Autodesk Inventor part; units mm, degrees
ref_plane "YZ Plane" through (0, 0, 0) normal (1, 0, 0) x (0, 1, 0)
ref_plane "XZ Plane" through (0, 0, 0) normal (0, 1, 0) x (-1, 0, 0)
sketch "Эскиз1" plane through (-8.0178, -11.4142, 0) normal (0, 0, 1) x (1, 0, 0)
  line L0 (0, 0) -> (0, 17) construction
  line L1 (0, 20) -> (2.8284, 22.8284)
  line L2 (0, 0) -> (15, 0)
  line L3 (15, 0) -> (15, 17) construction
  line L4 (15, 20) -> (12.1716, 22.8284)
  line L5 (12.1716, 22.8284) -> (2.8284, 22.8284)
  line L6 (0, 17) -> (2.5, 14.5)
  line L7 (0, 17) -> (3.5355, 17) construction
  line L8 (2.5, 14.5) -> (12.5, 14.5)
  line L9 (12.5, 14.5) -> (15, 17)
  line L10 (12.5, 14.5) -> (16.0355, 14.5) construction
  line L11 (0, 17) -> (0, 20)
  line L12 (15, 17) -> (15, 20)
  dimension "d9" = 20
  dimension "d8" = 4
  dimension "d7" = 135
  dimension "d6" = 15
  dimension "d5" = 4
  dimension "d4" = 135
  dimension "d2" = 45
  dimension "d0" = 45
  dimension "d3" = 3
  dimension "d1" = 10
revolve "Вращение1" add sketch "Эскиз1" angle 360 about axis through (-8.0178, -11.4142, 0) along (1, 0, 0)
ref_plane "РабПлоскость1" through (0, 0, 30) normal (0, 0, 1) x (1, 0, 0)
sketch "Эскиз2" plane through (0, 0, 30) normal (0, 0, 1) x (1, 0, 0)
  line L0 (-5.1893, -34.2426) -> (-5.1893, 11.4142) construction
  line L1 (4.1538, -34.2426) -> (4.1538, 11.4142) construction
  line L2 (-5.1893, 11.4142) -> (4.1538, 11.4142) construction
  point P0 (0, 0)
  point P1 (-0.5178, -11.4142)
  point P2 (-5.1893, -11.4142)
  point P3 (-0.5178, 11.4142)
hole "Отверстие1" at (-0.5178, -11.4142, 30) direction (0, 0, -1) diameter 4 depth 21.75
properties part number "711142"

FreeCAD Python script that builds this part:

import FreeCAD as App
import Part
import Sketcher


def add_polygon(sketch, points):
    """Adds a closed chain of lines whose ends are joined by coincident constraints."""
    first, n = sketch.GeometryCount, len(points)
    for a, b in zip(points, points[1:] + points[:1]):
        sketch.addGeometry(Part.LineSegment(App.Vector(*a, 0), App.Vector(*b, 0)), False)
    for i in range(n):
        sketch.addConstraint(Sketcher.Constraint("Coincident", first + i, 2, first + (i + 1) % n, 1))

doc = App.newDocument("Part")
params = doc.addObject("Spreadsheet::Sheet", "Params")
for row, (alias, value) in enumerate([
    ("sketch1_width", "10 mm"),
    ("sketch1_width2", "15 mm"),
    ("sketch1_height", "3 mm"),
    ("sketch1_length", "4 mm"),
    ("revolution_angle", "360 deg"),
    ("sketch2_diameter", "4 mm"),
    ("hole_diameter", "4 mm"),
    ("hole_depth", "21.75 mm"),
], start=1):
    params.set(f"A{row}", alias)
    params.set(f"B{row}", "=" + value)
    params.setAlias(f"B{row}", alias)

body = doc.addObject("PartDesign::Body", "Body")

# Sketch on XY plane
sketch1 = body.newObject("Sketcher::SketchObject", "Sketch")
sketch1.AttachmentSupport = (doc.getObject("XY_Plane"), [""])
sketch1.MapMode = "FlatFace"
add_polygon(sketch1, [(-5.2, 11.4), (-8, 8.6), (-8, 5.6), (-5.5, 3.1), (4.5, 3.1), (7, 5.6), (7, 8.6), (4.2, 11.4)])  # lines 0-7
sketch1.addGeometry(Part.LineSegment(App.Vector(-8, -11.4, 0), App.Vector(7, -11.4, 0)), True)  # axis
sketch1.addConstraint(Sketcher.Constraint("Vertical", 1))
sketch1.addConstraint(Sketcher.Constraint("Horizontal", 3))
sketch1.addConstraint(Sketcher.Constraint("Vertical", 5))
sketch1.addConstraint(Sketcher.Constraint("Horizontal", 7))
sketch1.addConstraint(Sketcher.Constraint("Horizontal", 8))
sketch1.addConstraint(Sketcher.Constraint("Perpendicular", 0, 2))
sketch1.addConstraint(Sketcher.Constraint("Perpendicular", 2, 4))
sketch1.addConstraint(Sketcher.Constraint("Perpendicular", 4, 6))
sketch1.addConstraint(Sketcher.Constraint("Horizontal", 1, 2, 4, 2))
sketch1.addConstraint(Sketcher.Constraint("Horizontal", 0, 2, 5, 2))
sketch1.addConstraint(Sketcher.Constraint("Vertical", 1, 2, 8, 1))
sketch1.addConstraint(Sketcher.Constraint("Vertical", 5, 2, 8, 2))
sketch1.addConstraint(Sketcher.Constraint("Equal", 2, 4))
sketch1.addConstraint(Sketcher.Constraint("DistanceX", 3, 1, 3, 2, 10.0))
sketch1.addConstraint(Sketcher.Constraint("DistanceX", 8, 1, 8, 2, 15.0))
sketch1.addConstraint(Sketcher.Constraint("DistanceY", 1, 2, 1, 1, 3.0))
sketch1.addConstraint(Sketcher.Constraint("Distance", 0, 4.0))
sketch1.addConstraint(Sketcher.Constraint("DistanceY", 8, 1, 0, 2, 20.0))
sketch1.addConstraint(Sketcher.Constraint("DistanceX", 0, 2, -1, 1, 8.0178))
sketch1.addConstraint(Sketcher.Constraint("DistanceY", -1, 1, 0, 2, 8.5858))
sketch1.setExpression("Constraints[21]", "Params.sketch1_width")
sketch1.setExpression("Constraints[22]", "Params.sketch1_width2")
sketch1.setExpression("Constraints[23]", "Params.sketch1_height")
sketch1.setExpression("Constraints[24]", "Params.sketch1_length")
revolution = body.newObject("PartDesign::Revolution", "Revolution")
revolution.Profile = sketch1
revolution.ReferenceAxis = (sketch1, ["Axis0"])
revolution.setExpression("Angle", "Params.revolution_angle")

# Sketch on XY plane
sketch2 = body.newObject("Sketcher::SketchObject", "Sketch001")
sketch2.AttachmentSupport = (doc.getObject("XY_Plane"), [""])
sketch2.MapMode = "FlatFace"
sketch2.AttachmentOffset = App.Placement(App.Vector(0, 0, 30), App.Rotation())
sketch2.addGeometry(Part.Circle(App.Vector(-0.5, -11.4, 0), App.Vector(0, 0, 1), 2), False)
sketch2.addConstraint(Sketcher.Constraint("Diameter", 0, 4.0))
sketch2.addConstraint(Sketcher.Constraint("DistanceX", 0, 3, -1, 1, 0.5178))
sketch2.addConstraint(Sketcher.Constraint("DistanceY", 0, 3, -1, 1, 11.4142))
sketch2.setExpression("Constraints[0]", "Params.sketch2_diameter")
doc.recompute()
hole = body.newObject("PartDesign::Hole", "Hole")
hole.Profile = sketch2
hole.ThreadType = "None"
hole.setExpression("Diameter", "Params.hole_diameter")
hole.DepthType = "Dimension"
hole.setExpression("Depth", "Params.hole_depth")
hole.DrillPoint = "Flat"

doc.recompute()
